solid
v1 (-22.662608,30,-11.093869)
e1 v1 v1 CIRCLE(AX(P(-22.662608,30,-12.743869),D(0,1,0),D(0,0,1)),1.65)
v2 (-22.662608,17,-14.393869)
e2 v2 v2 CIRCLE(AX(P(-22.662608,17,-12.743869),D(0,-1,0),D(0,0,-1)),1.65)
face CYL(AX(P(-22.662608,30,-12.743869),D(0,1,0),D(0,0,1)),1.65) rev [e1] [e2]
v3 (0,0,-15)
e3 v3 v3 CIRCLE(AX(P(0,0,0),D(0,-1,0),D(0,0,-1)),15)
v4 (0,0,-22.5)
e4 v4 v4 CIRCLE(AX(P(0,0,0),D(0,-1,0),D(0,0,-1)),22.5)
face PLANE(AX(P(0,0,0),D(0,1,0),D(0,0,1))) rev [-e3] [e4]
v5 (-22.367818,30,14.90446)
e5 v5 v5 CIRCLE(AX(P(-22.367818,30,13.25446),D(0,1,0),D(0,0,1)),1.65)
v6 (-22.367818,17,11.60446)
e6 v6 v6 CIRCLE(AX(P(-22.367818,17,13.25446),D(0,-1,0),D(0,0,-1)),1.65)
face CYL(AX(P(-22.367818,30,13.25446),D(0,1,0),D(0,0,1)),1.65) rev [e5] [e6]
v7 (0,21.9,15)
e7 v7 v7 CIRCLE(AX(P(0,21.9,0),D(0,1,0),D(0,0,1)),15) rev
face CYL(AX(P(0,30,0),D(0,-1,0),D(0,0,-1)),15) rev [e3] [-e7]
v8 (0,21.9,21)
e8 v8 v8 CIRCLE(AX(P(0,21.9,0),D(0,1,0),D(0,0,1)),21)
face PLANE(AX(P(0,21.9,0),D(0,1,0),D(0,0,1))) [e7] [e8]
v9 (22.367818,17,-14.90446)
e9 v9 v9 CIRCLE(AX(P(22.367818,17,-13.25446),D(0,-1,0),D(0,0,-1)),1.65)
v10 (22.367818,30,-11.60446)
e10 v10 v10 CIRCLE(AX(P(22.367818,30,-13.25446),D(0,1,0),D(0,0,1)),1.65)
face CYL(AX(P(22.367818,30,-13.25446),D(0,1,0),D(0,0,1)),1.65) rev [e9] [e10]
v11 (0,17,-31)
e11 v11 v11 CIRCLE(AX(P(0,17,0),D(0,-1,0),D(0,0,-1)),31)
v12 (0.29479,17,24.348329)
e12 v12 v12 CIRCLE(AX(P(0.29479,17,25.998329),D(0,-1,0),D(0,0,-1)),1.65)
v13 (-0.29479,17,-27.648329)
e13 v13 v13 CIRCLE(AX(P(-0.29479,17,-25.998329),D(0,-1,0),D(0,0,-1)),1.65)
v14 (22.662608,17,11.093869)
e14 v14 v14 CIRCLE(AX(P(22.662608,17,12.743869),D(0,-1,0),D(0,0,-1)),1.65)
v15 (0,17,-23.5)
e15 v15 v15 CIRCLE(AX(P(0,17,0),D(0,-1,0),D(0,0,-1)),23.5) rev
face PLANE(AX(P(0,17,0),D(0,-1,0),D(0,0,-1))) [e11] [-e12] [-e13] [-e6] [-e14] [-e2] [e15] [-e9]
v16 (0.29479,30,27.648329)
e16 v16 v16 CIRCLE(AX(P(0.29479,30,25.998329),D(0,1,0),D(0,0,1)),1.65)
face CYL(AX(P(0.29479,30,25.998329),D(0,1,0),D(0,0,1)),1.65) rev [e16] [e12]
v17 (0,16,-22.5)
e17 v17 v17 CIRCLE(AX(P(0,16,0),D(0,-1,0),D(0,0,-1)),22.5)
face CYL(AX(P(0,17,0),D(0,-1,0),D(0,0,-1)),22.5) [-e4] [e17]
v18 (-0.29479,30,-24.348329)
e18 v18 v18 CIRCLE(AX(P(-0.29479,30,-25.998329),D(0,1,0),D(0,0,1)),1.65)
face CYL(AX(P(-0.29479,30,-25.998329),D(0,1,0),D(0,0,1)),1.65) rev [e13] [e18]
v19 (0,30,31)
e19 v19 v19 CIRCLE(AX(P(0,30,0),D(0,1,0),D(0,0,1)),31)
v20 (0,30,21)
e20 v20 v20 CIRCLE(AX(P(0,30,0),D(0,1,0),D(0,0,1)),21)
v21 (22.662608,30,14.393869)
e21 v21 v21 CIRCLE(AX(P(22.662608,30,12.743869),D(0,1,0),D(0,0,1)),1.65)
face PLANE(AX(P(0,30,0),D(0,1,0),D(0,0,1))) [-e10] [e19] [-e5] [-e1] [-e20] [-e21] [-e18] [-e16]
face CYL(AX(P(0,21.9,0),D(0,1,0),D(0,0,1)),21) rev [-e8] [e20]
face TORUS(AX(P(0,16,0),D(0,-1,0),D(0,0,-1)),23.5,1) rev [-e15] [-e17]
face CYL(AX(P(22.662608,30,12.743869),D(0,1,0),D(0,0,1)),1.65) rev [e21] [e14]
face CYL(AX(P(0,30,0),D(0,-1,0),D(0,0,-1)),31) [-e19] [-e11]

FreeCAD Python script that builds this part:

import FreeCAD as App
import Part
import Sketcher

V = App.Vector


def edges_at(feature, points):
    """Names of the edges that pass closest to the given points."""
    edges = feature.Shape.Edges
    near = lambda p: min(range(len(edges)), key=lambda i: edges[i].distToShape(Part.Vertex(*p))[0])
    return sorted({f"Edge{near(p) + 1}" for p in points})

doc = App.newDocument("Part")
body = doc.addObject("PartDesign::Body", "Body")

# Sketch on XZ plane
sketch1 = body.newObject("Sketcher::SketchObject", "Sketch")
sketch1.AttachmentSupport = (doc.getObject("XZ_Plane"), [""])
sketch1.MapMode = "FlatFace"
sketch1.addGeometry(Part.Circle(V(0, 0, 0), V(0, 0, 1), 31), False)
sketch1.addConstraint([
    Sketcher.Constraint("Coincident", 0, 3, -1, 1),
    Sketcher.Constraint("Diameter", 0, 62.0),
])
pad1 = body.newObject("PartDesign::Pad", "Pad")
pad1.Profile = sketch1
pad1.Length = 30
pad1.Reversed = True

# Sketch on XZ plane
sketch2 = body.newObject("Sketcher::SketchObject", "Sketch001")
sketch2.AttachmentSupport = (doc.getObject("XZ_Plane"), [""])
sketch2.MapMode = "FlatFace"
sketch2.addGeometry([
    Part.Circle(V(0, 0, 0), V(0, 0, 1), 31),
    Part.Circle(V(0, 0, 0), V(0, 0, 1), 22),
], False)
sketch2.addConstraint([
    Sketcher.Constraint("Coincident", 0, 3, -1, 1),
    Sketcher.Constraint("Coincident", 1, 3, -1, 1),
    Sketcher.Constraint("Diameter", 0, 62.0),
    Sketcher.Constraint("Diameter", 1, 45.0),
])
pocket1 = body.newObject("PartDesign::Pocket", "Pocket")
pocket1.Profile = sketch2
pocket1.Length = 17

# Sketch on XZ plane
sketch3 = body.newObject("Sketcher::SketchObject", "Sketch002")
sketch3.AttachmentSupport = (doc.getObject("XZ_Plane"), [""])
sketch3.MapMode = "FlatFace"
sketch3.addGeometry(Part.Circle(V(0, 0, 0), V(0, 0, 1), 15), False)
sketch3.addConstraint([
    Sketcher.Constraint("Coincident", 0, 3, -1, 1),
    Sketcher.Constraint("Diameter", 0, 30.0),
])
pocket2 = body.newObject("PartDesign::Pocket", "Pocket001")
pocket2.Profile = sketch3
pocket2.Type = "ThroughAll"

# Sketch on XZ plane
sketch4 = body.newObject("Sketcher::SketchObject", "Sketch003")
sketch4.AttachmentSupport = (doc.getObject("XZ_Plane"), [""])
sketch4.MapMode = "FlatFace"
sketch4.AttachmentOffset = App.Placement(V(0, 0, -30), App.Rotation())
sketch4.addGeometry(Part.Circle(V(0, 0, 0), V(0, 0, 1), 21), False)
sketch4.addConstraint([
    Sketcher.Constraint("Coincident", 0, 3, -1, 1),
    Sketcher.Constraint("Diameter", 0, 42.0),
])
pocket3 = body.newObject("PartDesign::Pocket", "Pocket002")
pocket3.Profile = sketch4
pocket3.Length = 8.1
pocket3.Reversed = True

# Sketch on XZ plane
sketch5 = body.newObject("Sketcher::SketchObject", "Sketch004")
sketch5.AttachmentSupport = (doc.getObject("XZ_Plane"), [""])
sketch5.MapMode = "FlatFace"
sketch5.AttachmentOffset = App.Placement(V(0, 0, -30), App.Rotation())
sketch5.addGeometry([
    Part.Circle(V(-0.3, -26, 0), V(0, 0, 1), 1.6),  # 0
    Part.Circle(V(22.4, -13.3, 0), V(0, 0, 1), 1.6),  # 1
    Part.Circle(V(22.7, 12.7, 0), V(0, 0, 1), 1.6),  # 2
    Part.Circle(V(0.3, 26, 0), V(0, 0, 1), 1.6),  # 3
    Part.Circle(V(-22.4, 13.3, 0), V(0, 0, 1), 1.6),  # 4
    Part.Circle(V(-22.7, -12.7, 0), V(0, 0, 1), 1.6),  # 5
], False)
sketch5.addConstraint([
    Sketcher.Constraint("Equal", 0, 1),
    Sketcher.Constraint("Equal", 1, 2),
    Sketcher.Constraint("Equal", 2, 3),
    Sketcher.Constraint("Equal", 3, 4),
    Sketcher.Constraint("Equal", 4, 5),
    Sketcher.Constraint("Symmetric", 0, 3, 3, 3, -1, 1),
    Sketcher.Constraint("Symmetric", 1, 3, 4, 3, -1, 1),
    Sketcher.Constraint("Symmetric", 2, 3, 5, 3, -1, 1),
    Sketcher.Constraint("Diameter", 0, 3.3),
    Sketcher.Constraint("DistanceX", 0, 3, 2, 3, 22.957399),
    Sketcher.Constraint("DistanceX", 0, 3, -1, 1, 0.29479),
    Sketcher.Constraint("DistanceY", 0, 3, -1, 1, 25.998329),
    Sketcher.Constraint("DistanceX", -1, 1, 1, 3, 22.367818),
    Sketcher.Constraint("DistanceY", 1, 3, -1, 1, 13.25446),
    Sketcher.Constraint("DistanceY", -1, 1, 2, 3, 12.743869),
])
doc.recompute()
hole = body.newObject("PartDesign::Hole", "Hole")
hole.Profile = sketch5
hole.ThreadType = "None"
hole.Diameter = 3.3
hole.DepthType = "ThroughAll"
hole.Reversed = True
doc.recompute()

fillet = body.newObject("PartDesign::Fillet", "Fillet")
fillet.Base = (hole, edges_at(hole, [(0, 17, 22.5)]))
fillet.Radius = 1

doc.recompute()
